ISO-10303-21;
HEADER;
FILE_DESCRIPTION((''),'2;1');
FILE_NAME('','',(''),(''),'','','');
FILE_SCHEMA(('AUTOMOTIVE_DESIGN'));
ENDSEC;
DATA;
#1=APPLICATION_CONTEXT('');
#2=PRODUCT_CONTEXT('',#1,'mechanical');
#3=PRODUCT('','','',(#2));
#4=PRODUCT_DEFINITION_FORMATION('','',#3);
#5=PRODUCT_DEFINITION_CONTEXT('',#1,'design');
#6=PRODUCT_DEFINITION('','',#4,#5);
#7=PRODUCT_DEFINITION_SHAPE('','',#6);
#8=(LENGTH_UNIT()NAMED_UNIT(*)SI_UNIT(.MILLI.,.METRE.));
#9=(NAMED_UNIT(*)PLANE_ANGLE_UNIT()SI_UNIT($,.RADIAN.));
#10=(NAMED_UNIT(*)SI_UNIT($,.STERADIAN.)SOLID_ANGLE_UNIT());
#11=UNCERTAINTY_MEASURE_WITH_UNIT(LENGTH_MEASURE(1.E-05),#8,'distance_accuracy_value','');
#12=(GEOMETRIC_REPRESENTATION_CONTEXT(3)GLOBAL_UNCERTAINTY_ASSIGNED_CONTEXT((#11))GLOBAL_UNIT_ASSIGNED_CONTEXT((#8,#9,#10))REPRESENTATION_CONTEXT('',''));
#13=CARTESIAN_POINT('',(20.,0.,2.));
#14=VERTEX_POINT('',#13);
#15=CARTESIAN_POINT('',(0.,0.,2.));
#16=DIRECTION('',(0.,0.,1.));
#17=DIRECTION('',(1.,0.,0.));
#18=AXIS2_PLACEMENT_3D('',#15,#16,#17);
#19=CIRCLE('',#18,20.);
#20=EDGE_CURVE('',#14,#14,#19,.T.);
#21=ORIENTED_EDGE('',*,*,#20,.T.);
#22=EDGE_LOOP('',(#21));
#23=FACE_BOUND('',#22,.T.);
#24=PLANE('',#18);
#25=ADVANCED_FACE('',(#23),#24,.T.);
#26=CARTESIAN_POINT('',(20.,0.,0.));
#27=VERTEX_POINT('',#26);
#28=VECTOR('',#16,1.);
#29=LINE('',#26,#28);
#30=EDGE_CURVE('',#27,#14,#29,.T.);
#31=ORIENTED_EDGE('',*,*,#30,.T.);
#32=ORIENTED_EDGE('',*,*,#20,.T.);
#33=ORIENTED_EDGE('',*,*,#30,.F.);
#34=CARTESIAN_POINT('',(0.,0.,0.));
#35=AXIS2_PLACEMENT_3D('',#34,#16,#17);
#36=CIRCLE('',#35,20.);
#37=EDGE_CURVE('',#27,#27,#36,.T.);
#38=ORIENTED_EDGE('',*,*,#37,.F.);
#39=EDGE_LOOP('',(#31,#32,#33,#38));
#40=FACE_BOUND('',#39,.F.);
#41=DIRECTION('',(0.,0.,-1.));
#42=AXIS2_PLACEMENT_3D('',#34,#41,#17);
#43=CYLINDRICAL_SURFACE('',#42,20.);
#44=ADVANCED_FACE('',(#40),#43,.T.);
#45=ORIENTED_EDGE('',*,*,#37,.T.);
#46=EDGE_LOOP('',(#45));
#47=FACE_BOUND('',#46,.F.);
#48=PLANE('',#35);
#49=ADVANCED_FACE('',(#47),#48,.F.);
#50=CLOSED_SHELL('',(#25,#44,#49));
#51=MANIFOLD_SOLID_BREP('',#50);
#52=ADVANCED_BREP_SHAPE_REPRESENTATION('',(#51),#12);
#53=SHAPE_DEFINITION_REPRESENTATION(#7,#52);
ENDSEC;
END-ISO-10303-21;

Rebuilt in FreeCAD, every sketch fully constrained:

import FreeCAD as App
import Part
import Sketcher

V = App.Vector
Q = App.Units.Quantity

doc = App.newDocument("Part")
body = doc.addObject("PartDesign::Body", "Body")

sketch1 = body.newObject("Sketcher::SketchObject", "Sketch")
sketch1.AttachmentSupport = (doc.getObject("XY_Plane"), [""])
sketch1.MapMode = "FlatFace"
sketch1.addGeometry(Part.Circle(V(0, 0, 0), V(0, 0, 1), 20), False)
sketch1.addConstraint([
    Sketcher.Constraint("Coincident", 0, 3, -1, 1),
    Sketcher.Constraint("Diameter", 0, Q("40 mm")),
])
pad1 = body.newObject("PartDesign::Pad", "Pad")
pad1.Profile = sketch1
pad1.Length = 2

doc.recompute()
